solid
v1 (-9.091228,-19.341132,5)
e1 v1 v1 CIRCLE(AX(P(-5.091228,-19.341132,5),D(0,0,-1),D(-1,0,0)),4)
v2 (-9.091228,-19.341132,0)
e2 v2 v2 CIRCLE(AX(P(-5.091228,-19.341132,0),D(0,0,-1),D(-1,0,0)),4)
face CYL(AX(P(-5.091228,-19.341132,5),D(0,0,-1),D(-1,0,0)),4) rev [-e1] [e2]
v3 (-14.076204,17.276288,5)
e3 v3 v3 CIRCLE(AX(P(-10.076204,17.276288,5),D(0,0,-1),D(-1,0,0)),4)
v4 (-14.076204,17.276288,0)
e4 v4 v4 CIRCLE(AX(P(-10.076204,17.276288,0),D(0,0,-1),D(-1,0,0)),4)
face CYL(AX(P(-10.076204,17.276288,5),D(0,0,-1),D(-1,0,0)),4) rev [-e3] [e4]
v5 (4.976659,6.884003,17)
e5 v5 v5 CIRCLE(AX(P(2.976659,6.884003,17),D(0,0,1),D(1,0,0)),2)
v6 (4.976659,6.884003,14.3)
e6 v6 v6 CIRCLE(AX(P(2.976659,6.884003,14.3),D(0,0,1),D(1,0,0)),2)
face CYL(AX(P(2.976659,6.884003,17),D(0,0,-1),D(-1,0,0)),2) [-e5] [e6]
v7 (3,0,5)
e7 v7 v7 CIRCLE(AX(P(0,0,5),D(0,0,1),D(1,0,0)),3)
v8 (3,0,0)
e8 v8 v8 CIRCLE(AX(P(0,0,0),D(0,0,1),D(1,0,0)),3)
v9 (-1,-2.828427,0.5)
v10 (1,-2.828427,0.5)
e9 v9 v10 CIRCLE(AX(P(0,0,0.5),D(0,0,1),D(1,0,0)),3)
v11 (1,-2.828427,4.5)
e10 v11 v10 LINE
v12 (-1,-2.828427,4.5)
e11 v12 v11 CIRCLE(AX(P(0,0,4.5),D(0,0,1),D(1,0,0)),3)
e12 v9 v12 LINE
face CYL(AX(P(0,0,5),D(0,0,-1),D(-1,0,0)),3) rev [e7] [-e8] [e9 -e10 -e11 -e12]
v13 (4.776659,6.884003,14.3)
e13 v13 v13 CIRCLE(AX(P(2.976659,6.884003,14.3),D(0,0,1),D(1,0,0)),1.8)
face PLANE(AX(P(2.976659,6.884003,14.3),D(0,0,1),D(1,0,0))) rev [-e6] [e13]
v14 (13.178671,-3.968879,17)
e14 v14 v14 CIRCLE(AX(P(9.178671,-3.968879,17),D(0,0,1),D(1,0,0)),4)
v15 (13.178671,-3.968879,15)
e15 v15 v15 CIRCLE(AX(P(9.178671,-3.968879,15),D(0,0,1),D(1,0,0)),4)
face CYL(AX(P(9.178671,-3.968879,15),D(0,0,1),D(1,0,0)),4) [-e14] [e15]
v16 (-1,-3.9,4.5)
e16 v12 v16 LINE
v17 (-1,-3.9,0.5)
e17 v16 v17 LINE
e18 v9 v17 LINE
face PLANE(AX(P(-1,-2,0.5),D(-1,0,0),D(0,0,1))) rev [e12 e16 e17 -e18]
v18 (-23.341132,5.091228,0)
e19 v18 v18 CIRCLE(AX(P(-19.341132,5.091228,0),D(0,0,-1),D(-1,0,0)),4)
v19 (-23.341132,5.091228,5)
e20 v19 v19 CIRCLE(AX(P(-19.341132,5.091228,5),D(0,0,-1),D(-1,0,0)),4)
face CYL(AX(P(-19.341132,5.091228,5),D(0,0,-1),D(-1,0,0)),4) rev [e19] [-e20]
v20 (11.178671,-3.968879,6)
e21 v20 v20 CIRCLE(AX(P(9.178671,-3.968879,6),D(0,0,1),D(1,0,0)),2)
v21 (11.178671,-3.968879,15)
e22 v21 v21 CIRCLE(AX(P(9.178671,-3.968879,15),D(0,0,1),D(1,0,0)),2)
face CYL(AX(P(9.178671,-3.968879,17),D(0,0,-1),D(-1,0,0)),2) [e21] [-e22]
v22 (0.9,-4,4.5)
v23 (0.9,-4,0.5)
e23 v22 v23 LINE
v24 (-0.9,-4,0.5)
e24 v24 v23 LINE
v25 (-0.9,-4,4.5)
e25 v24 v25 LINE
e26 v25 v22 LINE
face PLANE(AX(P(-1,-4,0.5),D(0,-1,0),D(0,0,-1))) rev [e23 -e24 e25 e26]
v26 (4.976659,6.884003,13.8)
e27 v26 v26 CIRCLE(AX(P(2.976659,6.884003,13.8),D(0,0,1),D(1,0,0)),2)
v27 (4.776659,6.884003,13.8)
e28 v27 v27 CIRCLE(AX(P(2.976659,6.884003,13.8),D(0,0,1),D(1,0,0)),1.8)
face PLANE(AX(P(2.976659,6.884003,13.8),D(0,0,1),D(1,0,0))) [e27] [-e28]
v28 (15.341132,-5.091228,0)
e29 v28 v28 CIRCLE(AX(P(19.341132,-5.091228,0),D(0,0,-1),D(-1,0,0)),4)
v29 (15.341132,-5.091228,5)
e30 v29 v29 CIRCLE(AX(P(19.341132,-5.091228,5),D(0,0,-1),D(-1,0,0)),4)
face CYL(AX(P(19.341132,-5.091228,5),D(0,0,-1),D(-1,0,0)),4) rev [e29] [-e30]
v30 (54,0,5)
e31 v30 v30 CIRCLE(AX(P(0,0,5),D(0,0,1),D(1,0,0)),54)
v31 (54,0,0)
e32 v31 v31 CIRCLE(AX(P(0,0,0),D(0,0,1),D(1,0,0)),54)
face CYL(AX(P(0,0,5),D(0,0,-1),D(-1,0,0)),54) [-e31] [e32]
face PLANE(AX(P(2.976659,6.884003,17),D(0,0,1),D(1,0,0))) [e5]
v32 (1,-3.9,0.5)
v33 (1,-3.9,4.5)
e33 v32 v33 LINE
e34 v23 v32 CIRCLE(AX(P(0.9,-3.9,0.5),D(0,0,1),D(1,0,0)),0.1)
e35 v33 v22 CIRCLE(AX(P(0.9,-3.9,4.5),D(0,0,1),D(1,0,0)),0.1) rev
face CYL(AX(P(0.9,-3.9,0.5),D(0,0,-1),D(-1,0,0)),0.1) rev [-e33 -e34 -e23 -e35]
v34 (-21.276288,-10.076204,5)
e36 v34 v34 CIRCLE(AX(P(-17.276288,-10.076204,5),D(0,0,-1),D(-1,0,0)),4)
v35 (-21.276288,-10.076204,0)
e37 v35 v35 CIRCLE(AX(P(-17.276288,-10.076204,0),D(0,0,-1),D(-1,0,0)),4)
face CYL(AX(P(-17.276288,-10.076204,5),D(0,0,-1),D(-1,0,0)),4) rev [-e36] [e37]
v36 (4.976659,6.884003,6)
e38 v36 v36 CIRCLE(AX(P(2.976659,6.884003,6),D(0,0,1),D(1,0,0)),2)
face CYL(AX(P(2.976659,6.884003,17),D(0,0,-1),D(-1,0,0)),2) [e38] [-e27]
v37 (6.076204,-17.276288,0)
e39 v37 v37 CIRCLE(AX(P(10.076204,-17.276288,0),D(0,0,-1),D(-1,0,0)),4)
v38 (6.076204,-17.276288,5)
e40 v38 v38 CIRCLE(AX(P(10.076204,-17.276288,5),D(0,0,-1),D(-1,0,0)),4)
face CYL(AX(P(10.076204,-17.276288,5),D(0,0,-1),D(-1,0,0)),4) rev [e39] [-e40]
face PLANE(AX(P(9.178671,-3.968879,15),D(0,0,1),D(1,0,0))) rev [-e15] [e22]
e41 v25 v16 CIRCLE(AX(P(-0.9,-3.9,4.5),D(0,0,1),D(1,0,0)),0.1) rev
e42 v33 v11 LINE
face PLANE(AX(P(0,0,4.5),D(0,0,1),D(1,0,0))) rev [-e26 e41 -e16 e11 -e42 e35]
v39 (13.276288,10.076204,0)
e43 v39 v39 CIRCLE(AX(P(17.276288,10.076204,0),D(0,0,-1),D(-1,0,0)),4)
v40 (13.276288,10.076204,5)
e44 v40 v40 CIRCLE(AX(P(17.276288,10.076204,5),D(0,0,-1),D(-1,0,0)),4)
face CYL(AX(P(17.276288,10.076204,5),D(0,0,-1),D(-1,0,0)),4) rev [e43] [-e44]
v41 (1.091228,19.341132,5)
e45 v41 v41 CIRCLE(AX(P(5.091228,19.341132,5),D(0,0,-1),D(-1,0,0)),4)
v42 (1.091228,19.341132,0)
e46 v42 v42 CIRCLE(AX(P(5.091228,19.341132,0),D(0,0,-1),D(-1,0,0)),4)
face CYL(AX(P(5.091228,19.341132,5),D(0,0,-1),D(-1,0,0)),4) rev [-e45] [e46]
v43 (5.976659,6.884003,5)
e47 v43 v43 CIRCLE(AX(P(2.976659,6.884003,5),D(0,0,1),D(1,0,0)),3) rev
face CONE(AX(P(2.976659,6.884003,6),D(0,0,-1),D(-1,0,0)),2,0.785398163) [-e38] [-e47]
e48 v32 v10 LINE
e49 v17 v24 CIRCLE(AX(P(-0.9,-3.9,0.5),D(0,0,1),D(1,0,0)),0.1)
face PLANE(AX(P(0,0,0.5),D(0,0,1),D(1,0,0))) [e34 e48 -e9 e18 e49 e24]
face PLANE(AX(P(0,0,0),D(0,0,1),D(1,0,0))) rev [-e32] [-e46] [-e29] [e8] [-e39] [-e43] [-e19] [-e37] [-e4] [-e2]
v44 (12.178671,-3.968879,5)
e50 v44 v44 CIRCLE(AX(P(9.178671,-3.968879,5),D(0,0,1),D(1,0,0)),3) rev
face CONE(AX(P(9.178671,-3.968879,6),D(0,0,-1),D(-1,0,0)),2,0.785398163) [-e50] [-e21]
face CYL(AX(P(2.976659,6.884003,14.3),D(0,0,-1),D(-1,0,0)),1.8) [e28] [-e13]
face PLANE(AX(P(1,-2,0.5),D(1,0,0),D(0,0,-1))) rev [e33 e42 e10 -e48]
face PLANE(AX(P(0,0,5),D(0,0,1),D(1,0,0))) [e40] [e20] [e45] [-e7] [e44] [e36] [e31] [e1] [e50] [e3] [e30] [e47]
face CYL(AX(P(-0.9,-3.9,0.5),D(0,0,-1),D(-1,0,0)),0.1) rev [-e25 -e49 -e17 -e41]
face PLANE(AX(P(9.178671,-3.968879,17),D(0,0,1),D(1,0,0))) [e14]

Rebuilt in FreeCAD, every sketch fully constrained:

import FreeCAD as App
import Part
import Sketcher


def edges_at(feature, points):
    """Names of the edges that pass closest to the given points."""
    edges = feature.Shape.Edges
    near = lambda p: min(range(len(edges)), key=lambda i: edges[i].distToShape(Part.Vertex(*p))[0])
    return sorted({f"Edge{near(p) + 1}" for p in points})


def add_polygon(sketch, points):
    """Adds a closed chain of lines whose ends are joined by coincident constraints."""
    first, n = sketch.GeometryCount, len(points)
    for a, b in zip(points, points[1:] + points[:1]):
        sketch.addGeometry(Part.LineSegment(App.Vector(*a, 0), App.Vector(*b, 0)), False)
    for i in range(n):
        sketch.addConstraint(Sketcher.Constraint("Coincident", first + i, 2, first + (i + 1) % n, 1))

doc = App.newDocument("Part")
params = doc.addObject("Spreadsheet::Sheet", "Params")
for row, (alias, value) in enumerate([
    ("sketch1_diameter", "108 mm"),
    ("sketch1_diameter2", "6 mm"),
    ("pad1_length", "5 mm"),
    ("sketch2_diameter", "8 mm"),
    ("sketch3_diameter", "4 mm"),
    ("pad2_length", "12 mm"),
    ("sketch4_diameter", "4 mm"),
    ("sketch4_diameter2", "3.6 mm"),
    ("pocket2_length", "0.5 mm"),
    ("sketch5_diameter", "8 mm"),
    ("pad3_length", "2 mm"),
    ("chamfer_size", "1 mm"),
    ("sketch6_width", "2 mm"),
    ("pocket3_length", "4 mm"),
    ("fillet_radius", "0.1 mm"),
], start=1):
    params.set(f"A{row}", alias)
    params.set(f"B{row}", "=" + value)
    params.setAlias(f"B{row}", alias)

body = doc.addObject("PartDesign::Body", "Body")

# Sketch on XY plane
sketch1 = doc.addObject("Sketcher::SketchObject", "Sketch")
body.addObject(sketch1)
sketch1.AttachmentSupport = (doc.XY_Plane, [""])
sketch1.MapMode = "FlatFace"
sketch1.addGeometry([
    Part.Circle(App.Vector(0, 0, 0), App.Vector(0, 0, 1), 54),
    Part.Circle(App.Vector(0, 0, 0), App.Vector(0, 0, 1), 3),
], False)
sketch1.addConstraint([
    Sketcher.Constraint("Coincident", 0, 3, -1, 1),
    Sketcher.Constraint("Coincident", 1, 3, -1, 1),
    Sketcher.Constraint("Diameter", 0, 108.0),
    Sketcher.Constraint("Diameter", 1, 6.0),
])
sketch1.setExpression("Constraints[2]", "Params.sketch1_diameter")
sketch1.setExpression("Constraints[3]", "Params.sketch1_diameter2")
pad1 = doc.addObject("PartDesign::Pad", "Pad")
body.addObject(pad1)
pad1.Profile = sketch1
pad1.setExpression("Length", "Params.pad1_length")

# Sketch on XY plane
sketch2 = doc.addObject("Sketcher::SketchObject", "Sketch001")
body.addObject(sketch2)
sketch2.AttachmentSupport = (doc.XY_Plane, [""])
sketch2.MapMode = "FlatFace"
sketch2.addGeometry([
    Part.Circle(App.Vector(5.091228, 19.341132, 0), App.Vector(0, 0, 1), 4),  # 0
    Part.Circle(App.Vector(-10.076204, 17.276288, 0), App.Vector(0, 0, 1), 4),  # 1
    Part.Circle(App.Vector(-19.341132, 5.091228, 0), App.Vector(0, 0, 1), 4),  # 2
    Part.Circle(App.Vector(-17.276288, -10.076204, 0), App.Vector(0, 0, 1), 4),  # 3
    Part.Circle(App.Vector(-5.091228, -19.341132, 0), App.Vector(0, 0, 1), 4),  # 4
    Part.Circle(App.Vector(10.076204, -17.276288, 0), App.Vector(0, 0, 1), 4),  # 5
    Part.Circle(App.Vector(19.341132, -5.091228, 0), App.Vector(0, 0, 1), 4),  # 6
    Part.Circle(App.Vector(17.276288, 10.076204, 0), App.Vector(0, 0, 1), 4),  # 7
], False)
sketch2.addConstraint([
    Sketcher.Constraint("Equal", 0, 1),
    Sketcher.Constraint("Equal", 1, 2),
    Sketcher.Constraint("Equal", 2, 3),
    Sketcher.Constraint("Equal", 3, 4),
    Sketcher.Constraint("Equal", 4, 5),
    Sketcher.Constraint("Equal", 5, 6),
    Sketcher.Constraint("Equal", 6, 7),
    Sketcher.Constraint("Symmetric", 0, 3, 4, 3, -1, 1),
    Sketcher.Constraint("Symmetric", 1, 3, 5, 3, -1, 1),
    Sketcher.Constraint("Symmetric", 2, 3, 6, 3, -1, 1),
    Sketcher.Constraint("Symmetric", 3, 3, 7, 3, -1, 1),
    Sketcher.Constraint("Diameter", 0, 8.0),
    Sketcher.Constraint("DistanceX", 1, 3, 0, 3, 15.167432),
    Sketcher.Constraint("DistanceX", 2, 3, 1, 3, 9.264928),
    Sketcher.Constraint("DistanceY", 2, 3, 1, 3, 12.18506),
    Sketcher.Constraint("DistanceY", 3, 3, 2, 3, 15.167432),
    Sketcher.Constraint("DistanceX", 3, 3, 4, 3, 12.18506),
    Sketcher.Constraint("DistanceY", 4, 3, 3, 3, 9.264928),
    Sketcher.Constraint("DistanceX", -1, 1, 0, 3, 5.091228),
    Sketcher.Constraint("DistanceY", -1, 1, 0, 3, 19.341132),
])
sketch2.setExpression("Constraints[11]", "Params.sketch2_diameter")
pocket1 = doc.addObject("PartDesign::Pocket", "Pocket")
body.addObject(pocket1)
pocket1.Profile = sketch2
pocket1.Type = "ThroughAll"
pocket1.Reversed = True

# Sketch on XY plane
sketch3 = doc.addObject("Sketcher::SketchObject", "Sketch002")
body.addObject(sketch3)
sketch3.AttachmentSupport = (doc.XY_Plane, [""])
sketch3.MapMode = "FlatFace"
sketch3.AttachmentOffset = App.Placement(App.Vector(0, 0, 5), App.Rotation())
sketch3.addGeometry([
    Part.Circle(App.Vector(2.976659, 6.884003, 0), App.Vector(0, 0, 1), 2),
    Part.Circle(App.Vector(9.178671, -3.968879, 0), App.Vector(0, 0, 1), 2),
], False)
sketch3.addConstraint([
    Sketcher.Constraint("Equal", 0, 1),
    Sketcher.Constraint("Diameter", 0, 4.0),
    Sketcher.Constraint("DistanceX", -1, 1, 0, 3, 2.976659),
    Sketcher.Constraint("DistanceX", -1, 1, 1, 3, 9.178671),
    Sketcher.Constraint("DistanceY", 1, 3, -1, 1, 3.968879),
    Sketcher.Constraint("DistanceY", -1, 1, 0, 3, 6.884003),
])
sketch3.setExpression("Constraints[1]", "Params.sketch3_diameter")
pad2 = doc.addObject("PartDesign::Pad", "Pad001")
body.addObject(pad2)
pad2.Profile = sketch3
pad2.setExpression("Length", "Params.pad2_length")

# Sketch on XY plane
sketch4 = doc.addObject("Sketcher::SketchObject", "Sketch003")
body.addObject(sketch4)
sketch4.AttachmentSupport = (doc.XY_Plane, [""])
sketch4.MapMode = "FlatFace"
sketch4.AttachmentOffset = App.Placement(App.Vector(0, 0, 13.8), App.Rotation())
sketch4.addGeometry([
    Part.Circle(App.Vector(2.976659, 6.884003, 0), App.Vector(0, 0, 1), 2),
    Part.Circle(App.Vector(2.976659, 6.884003, 0), App.Vector(0, 0, 1), 1.8),
], False)
sketch4.addConstraint([
    Sketcher.Constraint("Coincident", 1, 3, 0, 3),
    Sketcher.Constraint("Diameter", 0, 4.0),
    Sketcher.Constraint("Diameter", 1, 3.6),
    Sketcher.Constraint("DistanceX", -1, 1, 0, 3, 2.976659),
    Sketcher.Constraint("DistanceY", -1, 1, 0, 3, 6.884003),
])
sketch4.setExpression("Constraints[1]", "Params.sketch4_diameter")
sketch4.setExpression("Constraints[2]", "Params.sketch4_diameter2")
pocket2 = doc.addObject("PartDesign::Pocket", "Pocket001")
body.addObject(pocket2)
pocket2.Profile = sketch4
pocket2.setExpression("Length", "Params.pocket2_length")
pocket2.Reversed = True

# Sketch on XY plane
sketch5 = doc.addObject("Sketcher::SketchObject", "Sketch004")
body.addObject(sketch5)
sketch5.AttachmentSupport = (doc.XY_Plane, [""])
sketch5.MapMode = "FlatFace"
sketch5.AttachmentOffset = App.Placement(App.Vector(0, 0, 17), App.Rotation())
sketch5.addGeometry(Part.Circle(App.Vector(9.178671, -3.968879, 0), App.Vector(0, 0, 1), 4), False)
sketch5.addConstraint([
    Sketcher.Constraint("Diameter", 0, 8.0),
    Sketcher.Constraint("DistanceX", -1, 1, 0, 3, 9.178671),
    Sketcher.Constraint("DistanceY", 0, 3, -1, 1, 3.968879),
])
sketch5.setExpression("Constraints[0]", "Params.sketch5_diameter")
pad3 = doc.addObject("PartDesign::Pad", "Pad002")
body.addObject(pad3)
pad3.Profile = sketch5
pad3.setExpression("Length", "Params.pad3_length")
pad3.Reversed = True
doc.recompute()

chamfer = doc.addObject("PartDesign::Chamfer", "Chamfer")
body.addObject(chamfer)
chamfer.Base = (pad3, edges_at(pad3, [(0.977, 6.884, 5), (7.179, -3.969, 5)]))
chamfer.setExpression("Size", "Params.chamfer_size")

# Sketch on XY plane
sketch6 = doc.addObject("Sketcher::SketchObject", "Sketch005")
body.addObject(sketch6)
sketch6.AttachmentSupport = (doc.XY_Plane, [""])
sketch6.MapMode = "FlatFace"
sketch6.AttachmentOffset = App.Placement(App.Vector(0, 0, 4.5), App.Rotation())
add_polygon(sketch6, [(-1, -2), (-1, -4), (1, -4), (1, -2)])  # lines 0-3
sketch6.addConstraint([
    Sketcher.Constraint("Vertical", 0),
    Sketcher.Constraint("Horizontal", 1),
    Sketcher.Constraint("Vertical", 2),
    Sketcher.Constraint("Horizontal", 3),
    Sketcher.Constraint("Equal", 3, 0),
    Sketcher.Constraint("DistanceX", 1, 1, 1, 2, 2.0),
    Sketcher.Constraint("DistanceX", 0, 2, -1, 1, 1.0),
    Sketcher.Constraint("DistanceY", 0, 2, -1, 1, 4.0),
])
sketch6.setExpression("Constraints[9]", "Params.sketch6_width")
pocket3 = doc.addObject("PartDesign::Pocket", "Pocket002")
body.addObject(pocket3)
pocket3.Profile = sketch6
pocket3.setExpression("Length", "Params.pocket3_length")
doc.recompute()

fillet = doc.addObject("PartDesign::Fillet", "Fillet")
body.addObject(fillet)
fillet.Base = (pocket3, edges_at(pocket3, [(1, -4, 2.5), (-1, -4, 2.5)]))
fillet.setExpression("Radius", "Params.fillet_radius")

doc.recompute()
